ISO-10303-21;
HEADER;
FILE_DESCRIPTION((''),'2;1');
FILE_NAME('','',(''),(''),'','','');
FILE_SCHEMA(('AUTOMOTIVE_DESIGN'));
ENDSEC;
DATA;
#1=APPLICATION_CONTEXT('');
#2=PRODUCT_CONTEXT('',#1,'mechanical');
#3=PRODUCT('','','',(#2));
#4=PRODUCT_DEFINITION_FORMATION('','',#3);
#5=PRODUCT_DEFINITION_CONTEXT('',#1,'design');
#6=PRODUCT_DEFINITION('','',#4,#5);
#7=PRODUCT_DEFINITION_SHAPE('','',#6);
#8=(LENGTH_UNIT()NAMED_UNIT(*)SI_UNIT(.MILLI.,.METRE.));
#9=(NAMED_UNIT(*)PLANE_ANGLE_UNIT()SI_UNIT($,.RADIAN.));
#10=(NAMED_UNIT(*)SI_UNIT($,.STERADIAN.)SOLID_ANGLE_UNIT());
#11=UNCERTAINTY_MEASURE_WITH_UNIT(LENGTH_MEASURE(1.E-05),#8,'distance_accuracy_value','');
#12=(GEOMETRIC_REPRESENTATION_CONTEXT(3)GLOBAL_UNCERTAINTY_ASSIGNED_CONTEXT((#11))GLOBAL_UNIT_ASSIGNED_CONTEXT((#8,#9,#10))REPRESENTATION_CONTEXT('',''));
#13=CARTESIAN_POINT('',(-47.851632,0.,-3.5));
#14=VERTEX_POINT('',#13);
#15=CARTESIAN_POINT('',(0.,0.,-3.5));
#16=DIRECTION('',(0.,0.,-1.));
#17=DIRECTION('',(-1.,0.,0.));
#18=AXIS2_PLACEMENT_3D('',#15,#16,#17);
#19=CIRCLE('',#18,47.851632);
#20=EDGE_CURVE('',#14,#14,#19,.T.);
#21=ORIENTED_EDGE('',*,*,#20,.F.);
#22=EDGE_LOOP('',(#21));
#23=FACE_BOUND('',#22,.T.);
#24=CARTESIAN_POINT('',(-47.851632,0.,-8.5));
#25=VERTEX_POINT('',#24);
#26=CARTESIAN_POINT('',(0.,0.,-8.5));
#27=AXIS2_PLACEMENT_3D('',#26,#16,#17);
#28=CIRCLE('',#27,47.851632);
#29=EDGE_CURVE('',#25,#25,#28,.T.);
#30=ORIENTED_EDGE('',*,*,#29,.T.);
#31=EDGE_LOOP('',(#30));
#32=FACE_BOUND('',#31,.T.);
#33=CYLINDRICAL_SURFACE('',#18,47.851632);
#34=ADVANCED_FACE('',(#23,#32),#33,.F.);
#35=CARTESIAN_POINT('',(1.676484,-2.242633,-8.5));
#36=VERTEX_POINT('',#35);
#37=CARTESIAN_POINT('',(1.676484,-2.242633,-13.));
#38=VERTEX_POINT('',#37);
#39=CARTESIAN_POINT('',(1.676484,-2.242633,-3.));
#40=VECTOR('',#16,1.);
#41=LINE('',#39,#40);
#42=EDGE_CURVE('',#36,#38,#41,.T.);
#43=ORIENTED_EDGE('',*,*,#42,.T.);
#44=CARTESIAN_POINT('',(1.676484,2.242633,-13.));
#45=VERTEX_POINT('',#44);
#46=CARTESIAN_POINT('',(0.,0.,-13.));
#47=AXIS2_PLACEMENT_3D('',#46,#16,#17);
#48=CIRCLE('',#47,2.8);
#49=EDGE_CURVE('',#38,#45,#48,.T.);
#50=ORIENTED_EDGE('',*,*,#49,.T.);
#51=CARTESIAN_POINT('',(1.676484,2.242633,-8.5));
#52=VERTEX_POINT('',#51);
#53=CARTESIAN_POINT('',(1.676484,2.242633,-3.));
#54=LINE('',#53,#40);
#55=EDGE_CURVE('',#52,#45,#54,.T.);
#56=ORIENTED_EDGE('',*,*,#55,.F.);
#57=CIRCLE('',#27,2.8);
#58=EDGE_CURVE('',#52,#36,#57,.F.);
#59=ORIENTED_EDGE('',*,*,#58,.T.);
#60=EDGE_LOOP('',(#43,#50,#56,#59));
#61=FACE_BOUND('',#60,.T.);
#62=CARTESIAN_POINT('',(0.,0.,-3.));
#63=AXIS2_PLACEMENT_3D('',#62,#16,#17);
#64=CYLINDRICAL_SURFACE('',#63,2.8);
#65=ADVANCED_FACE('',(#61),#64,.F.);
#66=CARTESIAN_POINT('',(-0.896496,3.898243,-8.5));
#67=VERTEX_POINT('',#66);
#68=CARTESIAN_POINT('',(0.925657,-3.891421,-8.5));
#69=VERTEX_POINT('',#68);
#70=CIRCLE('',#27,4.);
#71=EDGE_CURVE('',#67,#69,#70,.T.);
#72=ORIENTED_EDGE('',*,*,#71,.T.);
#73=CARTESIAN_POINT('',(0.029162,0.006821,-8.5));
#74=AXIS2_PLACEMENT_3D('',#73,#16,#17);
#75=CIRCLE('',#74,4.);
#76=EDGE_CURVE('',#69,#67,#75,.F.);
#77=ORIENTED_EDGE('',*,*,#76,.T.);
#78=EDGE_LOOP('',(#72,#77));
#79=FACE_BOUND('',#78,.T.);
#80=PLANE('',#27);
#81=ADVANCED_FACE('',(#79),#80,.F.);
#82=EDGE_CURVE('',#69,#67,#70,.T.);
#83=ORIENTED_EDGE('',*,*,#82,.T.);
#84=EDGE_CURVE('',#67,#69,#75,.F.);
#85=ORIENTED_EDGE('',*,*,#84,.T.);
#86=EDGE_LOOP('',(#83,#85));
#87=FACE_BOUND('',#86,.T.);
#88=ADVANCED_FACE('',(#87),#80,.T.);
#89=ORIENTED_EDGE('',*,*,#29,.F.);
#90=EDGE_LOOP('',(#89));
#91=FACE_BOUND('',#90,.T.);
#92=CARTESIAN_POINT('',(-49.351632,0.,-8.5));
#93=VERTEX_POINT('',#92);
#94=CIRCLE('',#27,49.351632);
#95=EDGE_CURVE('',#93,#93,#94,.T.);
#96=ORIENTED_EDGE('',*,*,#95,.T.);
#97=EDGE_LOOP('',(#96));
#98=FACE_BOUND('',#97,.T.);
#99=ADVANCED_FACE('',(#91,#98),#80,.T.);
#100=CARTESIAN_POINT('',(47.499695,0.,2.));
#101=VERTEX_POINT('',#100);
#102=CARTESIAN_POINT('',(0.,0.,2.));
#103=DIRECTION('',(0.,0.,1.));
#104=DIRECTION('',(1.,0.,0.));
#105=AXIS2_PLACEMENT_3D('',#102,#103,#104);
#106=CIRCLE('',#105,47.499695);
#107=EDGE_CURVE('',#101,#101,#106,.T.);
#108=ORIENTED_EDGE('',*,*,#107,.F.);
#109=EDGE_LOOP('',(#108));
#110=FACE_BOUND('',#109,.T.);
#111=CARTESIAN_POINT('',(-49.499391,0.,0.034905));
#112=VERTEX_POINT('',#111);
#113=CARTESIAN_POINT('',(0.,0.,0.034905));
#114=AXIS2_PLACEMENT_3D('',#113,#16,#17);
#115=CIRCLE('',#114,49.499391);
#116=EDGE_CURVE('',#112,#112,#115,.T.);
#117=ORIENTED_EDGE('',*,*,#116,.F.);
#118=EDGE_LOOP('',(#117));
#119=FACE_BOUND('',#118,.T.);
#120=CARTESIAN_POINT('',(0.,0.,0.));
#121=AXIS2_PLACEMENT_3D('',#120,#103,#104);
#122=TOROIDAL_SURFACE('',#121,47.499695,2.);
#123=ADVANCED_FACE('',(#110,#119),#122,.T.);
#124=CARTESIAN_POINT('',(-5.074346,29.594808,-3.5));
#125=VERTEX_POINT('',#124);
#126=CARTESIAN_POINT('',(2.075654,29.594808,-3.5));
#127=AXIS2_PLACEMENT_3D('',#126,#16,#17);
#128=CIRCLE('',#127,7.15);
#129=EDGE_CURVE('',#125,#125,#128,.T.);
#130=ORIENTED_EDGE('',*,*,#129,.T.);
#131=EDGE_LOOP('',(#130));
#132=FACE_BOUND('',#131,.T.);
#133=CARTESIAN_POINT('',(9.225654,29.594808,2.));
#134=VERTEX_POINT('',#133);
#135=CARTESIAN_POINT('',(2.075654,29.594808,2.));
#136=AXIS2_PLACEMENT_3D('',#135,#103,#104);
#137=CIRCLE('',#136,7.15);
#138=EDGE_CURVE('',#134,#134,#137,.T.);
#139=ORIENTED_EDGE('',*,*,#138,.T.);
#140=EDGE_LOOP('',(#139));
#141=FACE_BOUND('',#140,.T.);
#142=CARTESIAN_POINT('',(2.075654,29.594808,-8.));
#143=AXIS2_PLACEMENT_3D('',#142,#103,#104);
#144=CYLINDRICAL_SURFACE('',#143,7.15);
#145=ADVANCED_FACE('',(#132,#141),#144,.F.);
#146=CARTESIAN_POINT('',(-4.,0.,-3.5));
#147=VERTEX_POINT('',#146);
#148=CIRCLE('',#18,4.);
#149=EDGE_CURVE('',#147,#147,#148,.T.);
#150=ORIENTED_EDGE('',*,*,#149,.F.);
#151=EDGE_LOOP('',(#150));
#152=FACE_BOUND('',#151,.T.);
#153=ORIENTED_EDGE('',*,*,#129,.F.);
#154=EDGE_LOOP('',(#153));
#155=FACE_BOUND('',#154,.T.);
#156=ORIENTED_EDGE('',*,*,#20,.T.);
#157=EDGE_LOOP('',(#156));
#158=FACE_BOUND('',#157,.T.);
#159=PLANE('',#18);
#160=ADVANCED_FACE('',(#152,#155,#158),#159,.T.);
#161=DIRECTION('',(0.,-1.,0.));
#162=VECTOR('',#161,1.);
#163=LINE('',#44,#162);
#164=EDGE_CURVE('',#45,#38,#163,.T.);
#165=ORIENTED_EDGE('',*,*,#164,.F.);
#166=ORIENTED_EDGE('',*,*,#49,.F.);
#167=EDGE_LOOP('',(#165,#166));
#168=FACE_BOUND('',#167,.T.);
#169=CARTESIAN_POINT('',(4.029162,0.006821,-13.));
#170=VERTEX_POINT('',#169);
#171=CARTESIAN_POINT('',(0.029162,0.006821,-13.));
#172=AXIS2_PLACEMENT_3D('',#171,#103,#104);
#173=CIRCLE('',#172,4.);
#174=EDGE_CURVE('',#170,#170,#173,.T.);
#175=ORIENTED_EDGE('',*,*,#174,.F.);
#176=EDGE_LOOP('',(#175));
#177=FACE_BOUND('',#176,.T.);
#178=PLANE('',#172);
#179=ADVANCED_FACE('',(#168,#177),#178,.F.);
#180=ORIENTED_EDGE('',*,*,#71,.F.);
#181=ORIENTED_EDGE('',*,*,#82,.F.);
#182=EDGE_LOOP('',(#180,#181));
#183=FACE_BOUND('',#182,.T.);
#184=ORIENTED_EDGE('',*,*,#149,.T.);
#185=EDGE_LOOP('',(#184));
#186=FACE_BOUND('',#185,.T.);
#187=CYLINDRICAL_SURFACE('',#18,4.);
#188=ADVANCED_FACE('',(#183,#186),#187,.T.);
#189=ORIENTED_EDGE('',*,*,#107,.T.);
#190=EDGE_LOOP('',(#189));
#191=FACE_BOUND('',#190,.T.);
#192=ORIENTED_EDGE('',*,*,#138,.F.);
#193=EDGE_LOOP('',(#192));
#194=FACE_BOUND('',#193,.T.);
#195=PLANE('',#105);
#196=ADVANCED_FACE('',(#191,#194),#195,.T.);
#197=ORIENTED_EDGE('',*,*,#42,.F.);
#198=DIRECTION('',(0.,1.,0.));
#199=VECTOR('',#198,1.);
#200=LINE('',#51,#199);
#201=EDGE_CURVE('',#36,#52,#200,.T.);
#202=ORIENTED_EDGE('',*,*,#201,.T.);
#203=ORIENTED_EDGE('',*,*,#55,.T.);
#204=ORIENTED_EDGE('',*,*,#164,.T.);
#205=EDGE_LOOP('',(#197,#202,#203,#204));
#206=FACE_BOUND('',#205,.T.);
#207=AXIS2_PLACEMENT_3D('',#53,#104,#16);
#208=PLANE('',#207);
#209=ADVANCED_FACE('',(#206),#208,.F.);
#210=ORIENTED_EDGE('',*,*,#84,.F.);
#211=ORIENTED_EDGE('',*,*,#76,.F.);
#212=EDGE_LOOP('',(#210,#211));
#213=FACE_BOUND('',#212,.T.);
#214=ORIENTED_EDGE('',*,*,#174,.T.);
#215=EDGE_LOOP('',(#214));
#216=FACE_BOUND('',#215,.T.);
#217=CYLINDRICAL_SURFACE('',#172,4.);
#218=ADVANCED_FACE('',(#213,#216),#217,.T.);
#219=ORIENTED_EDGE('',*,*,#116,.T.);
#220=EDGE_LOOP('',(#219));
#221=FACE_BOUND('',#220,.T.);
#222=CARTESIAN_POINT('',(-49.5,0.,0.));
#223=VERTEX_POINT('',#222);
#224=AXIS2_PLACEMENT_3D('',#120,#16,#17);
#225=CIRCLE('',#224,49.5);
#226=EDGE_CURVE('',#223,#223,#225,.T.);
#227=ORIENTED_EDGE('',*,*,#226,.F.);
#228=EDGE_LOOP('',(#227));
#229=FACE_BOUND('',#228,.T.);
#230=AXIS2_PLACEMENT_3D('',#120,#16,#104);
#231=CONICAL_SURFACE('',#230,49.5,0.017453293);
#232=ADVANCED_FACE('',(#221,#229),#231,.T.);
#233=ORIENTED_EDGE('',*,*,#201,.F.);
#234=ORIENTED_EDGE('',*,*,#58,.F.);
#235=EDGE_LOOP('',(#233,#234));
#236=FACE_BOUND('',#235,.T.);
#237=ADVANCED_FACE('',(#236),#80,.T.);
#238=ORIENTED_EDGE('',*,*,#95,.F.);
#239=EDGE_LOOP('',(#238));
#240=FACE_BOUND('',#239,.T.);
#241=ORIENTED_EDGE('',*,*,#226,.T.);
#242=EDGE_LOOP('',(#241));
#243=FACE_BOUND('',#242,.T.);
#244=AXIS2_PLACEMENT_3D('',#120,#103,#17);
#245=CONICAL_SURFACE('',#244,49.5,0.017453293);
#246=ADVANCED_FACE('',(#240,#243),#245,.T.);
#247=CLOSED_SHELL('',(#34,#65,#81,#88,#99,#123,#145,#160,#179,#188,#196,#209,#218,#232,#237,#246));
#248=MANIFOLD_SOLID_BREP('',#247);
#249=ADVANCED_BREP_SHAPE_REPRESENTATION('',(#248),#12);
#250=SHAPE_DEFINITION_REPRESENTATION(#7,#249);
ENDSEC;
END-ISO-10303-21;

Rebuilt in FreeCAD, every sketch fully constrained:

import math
import FreeCAD as App
import Part
import Sketcher
from FreeCAD import Vector
Q = App.Units.Quantity


def edges_at(feature, points):
    """Names of the edges that pass closest to the given points."""
    edges = feature.Shape.Edges
    near = lambda p: min(range(len(edges)), key=lambda i: edges[i].distToShape(Part.Vertex(*p))[0])
    return sorted({f"Edge{near(p) + 1}" for p in points})


def faces_at(feature, points):
    """Names of the faces that lie closest to the given points."""
    faces = feature.Shape.Faces
    near = lambda p: min(range(len(faces)), key=lambda i: faces[i].distToShape(Part.Vertex(*p))[0])
    return sorted({f"Face{near(p) + 1}" for p in points})

doc = App.newDocument("Part")
body = doc.addObject("PartDesign::Body", "Body")

# Sketch on XY plane
sketch1 = body.newObject("Sketcher::SketchObject", "Sketch")
sketch1.AttachmentSupport = (doc.getObject("XY_Plane"), [""])
sketch1.MapMode = "FlatFace"
sketch1.addGeometry(Part.Circle(Vector(0, 0, 0), Vector(0, 0, 1), 49.5), False)
sketch1.addConstraint([
    Sketcher.Constraint("Coincident", 0, 3, -1, 1),
    Sketcher.Constraint("Diameter", 0, Q("99 mm")),
])
pad1 = body.newObject("PartDesign::Pad", "Pad")
pad1.Profile = sketch1
pad1.Length = 2
pad1.TaperAngle = -1

# Sketch on XY plane
sketch2 = body.newObject("Sketcher::SketchObject", "Sketch001")
sketch2.AttachmentSupport = (doc.getObject("XY_Plane"), [""])
sketch2.MapMode = "FlatFace"
sketch2.AttachmentOffset = App.Placement(Vector(0, 0, 2), App.Rotation())
sketch2.addGeometry(Part.Circle(Vector(0.029162, 0.006821, 0), Vector(0, 0, 1), 4), False)
sketch2.addConstraint([
    Sketcher.Constraint("Diameter", 0, Q("8 mm")),
    Sketcher.Constraint("DistanceX", -1, 1, 0, 3, Q("0.029162 mm")),
    Sketcher.Constraint("DistanceY", -1, 1, 0, 3, Q("0.006821 mm")),
])
pad2 = body.newObject("PartDesign::Pad", "Pad001")
pad2.Profile = sketch2
pad2.Length = 15
pad2.Reversed = True

# Sketch on XY plane
sketch3 = body.newObject("Sketcher::SketchObject", "Sketch002")
sketch3.AttachmentSupport = (doc.getObject("XY_Plane"), [""])
sketch3.MapMode = "FlatFace"
sketch3.AttachmentOffset = App.Placement(Vector(0, 0, -13), App.Rotation())
sketch3.addGeometry([
    Part.LineSegment(Vector(1.576484, 2.191962, 0), Vector(1.576484, -2.191962, 0)),
    Part.ArcOfCircle(Part.Circle(Vector(0, 0, 0), Vector(0, 0, 1), 2.7), math.radians(54.275889), math.radians(305.724111)),
], False)
sketch3.addConstraint([
    Sketcher.Constraint("Coincident", 0, 1, 1, 1),
    Sketcher.Constraint("Coincident", 1, 2, 0, 2),
    Sketcher.Constraint("Vertical", 0),
    Sketcher.Constraint("Coincident", 1, 3, -1, 1),
    Sketcher.Constraint("Radius", 1, Q("2.7 mm")),
    Sketcher.Constraint("DistanceY", 0, 2, 0, 1, Q("4.383925 mm")),
])
pocket1 = body.newObject("PartDesign::Pocket", "Pocket")
pocket1.Profile = sketch3
pocket1.Length = 5
pocket1.Reversed = True
doc.recompute()

fillet = body.newObject("PartDesign::Fillet", "Fillet")
fillet.Base = (pocket1, edges_at(pocket1, [(-49.465, 0, 2)]))
fillet.Radius = 2
body2 = doc.addObject("PartDesign::Body", "Body001")

# Sketch on XY plane
sketch4 = body2.newObject("Sketcher::SketchObject", "Sketch003")
sketch4.AttachmentSupport = (doc.getObject("XY_Plane001"), [""])
sketch4.MapMode = "FlatFace"
sketch4.AttachmentOffset = App.Placement(Vector(0, 0, 2), App.Rotation())
sketch4.addGeometry(Part.Circle(Vector(2.075654, 29.594808, 0), Vector(0, 0, 1), 7.15), False)
sketch4.addConstraint([
    Sketcher.Constraint("Diameter", 0, Q("14.3 mm")),
    Sketcher.Constraint("DistanceY", -1, 1, 0, 3, Q("29.594808 mm")),
    Sketcher.Constraint("DistanceX", -1, 1, 0, 3, Q("2.075654 mm")),
])
pad3 = body2.newObject("PartDesign::Pad", "Pad002")
pad3.Profile = sketch4
pad3.Length = 11
pad3.Reversed = True
doc.recompute()

datumplane = body2.newObject("PartDesign::Plane", "DatumPlane")
datumplane.AttachmentSupport = (doc.getObject("XY_Plane001"), [""])
datumplane.MapMode = "FlatFace"
datumplane.AttachmentOffset = App.Placement(Vector(0, 0, 2), App.Rotation())
draft = body2.newObject("PartDesign::Draft", "Draft")
draft.Base = (pad3, faces_at(pad3, [(-5.074, 29.595, -3.5)]))
draft.NeutralPlane = (datumplane, [""])
draft.Angle = 1
draft.Reversed = True
doc.recompute()

boolean = body.newObject("PartDesign::Boolean", "Boolean")
boolean.Type = "Cut"
boolean.addObjects([body2])

# Sketch on XY plane
sketch5 = body.newObject("Sketcher::SketchObject", "Sketch004")
sketch5.AttachmentSupport = (doc.getObject("XY_Plane"), [""])
sketch5.MapMode = "FlatFace"
sketch5.AttachmentOffset = App.Placement(Vector(0, 0, -13), App.Rotation())
sketch5.addGeometry([
    Part.LineSegment(Vector(1.676484, 2.242633, 0), Vector(1.676484, -2.242633, 0)),
    Part.ArcOfCircle(Part.Circle(Vector(0, 0, 0), Vector(0, 0, 1), 2.8), math.radians(53.219988), math.radians(306.780012)),
], False)
sketch5.addConstraint([
    Sketcher.Constraint("Coincident", 0, 1, 1, 1),
    Sketcher.Constraint("Coincident", 1, 2, 0, 2),
    Sketcher.Constraint("Vertical", 0),
    Sketcher.Constraint("Coincident", 1, 3, -1, 1),
    Sketcher.Constraint("Radius", 1, Q("2.8 mm")),
    Sketcher.Constraint("DistanceY", 0, 2, 0, 1, Q("4.485266 mm")),
])
pocket2 = body.newObject("PartDesign::Pocket", "Pocket001")
pocket2.Profile = sketch5
pocket2.Length = 10
pocket2.Reversed = True

# Sketch on XY plane
sketch6 = body.newObject("Sketcher::SketchObject", "Sketch005")
sketch6.AttachmentSupport = (doc.getObject("XY_Plane"), [""])
sketch6.MapMode = "FlatFace"
sketch6.addGeometry(Part.Circle(Vector(0, 0, 0), Vector(0, 0, 1), 49.5), False)
sketch6.addConstraint([
    Sketcher.Constraint("Coincident", 0, 3, -1, 1),
    Sketcher.Constraint("Diameter", 0, Q("99 mm")),
])
pad4 = body.newObject("PartDesign::Pad", "Pad003")
pad4.Profile = sketch6
pad4.Length = 8.5
pad4.Reversed = True
pad4.TaperAngle = -1

# Sketch on XY plane
sketch7 = body.newObject("Sketcher::SketchObject", "Sketch006")
sketch7.AttachmentSupport = (doc.getObject("XY_Plane"), [""])
sketch7.MapMode = "FlatFace"
sketch7.AttachmentOffset = App.Placement(Vector(0, 0, -8.5), App.Rotation())
sketch7.addGeometry([
    Part.Circle(Vector(0, 0, 0), Vector(0, 0, 1), 47.851632),
    Part.Circle(Vector(0, 0, 0), Vector(0, 0, 1), 4),
], False)
sketch7.addConstraint([
    Sketcher.Constraint("Coincident", 0, 3, -1, 1),
    Sketcher.Constraint("Coincident", 1, 3, -1, 1),
    Sketcher.Constraint("Diameter", 1, Q("8 mm")),
    Sketcher.Constraint("Diameter", 0, Q("95.703264 mm")),
])
pocket3 = body.newObject("PartDesign::Pocket", "Pocket002")
pocket3.Profile = sketch7
pocket3.Length = 5
pocket3.Reversed = True

# Sketch on XY plane
sketch8 = body.newObject("Sketcher::SketchObject", "Sketch007")
sketch8.AttachmentSupport = (doc.getObject("XY_Plane"), [""])
sketch8.MapMode = "FlatFace"
sketch8.AttachmentOffset = App.Placement(Vector(0, 0, 2), App.Rotation())
sketch8.addGeometry(Part.Circle(Vector(2.075654, 29.594808, 0), Vector(0, 0, 1), 7.15), False)
sketch8.addConstraint([
    Sketcher.Constraint("Diameter", 0, Q("14.3 mm")),
    Sketcher.Constraint("DistanceY", -1, 1, 0, 3, Q("29.594808 mm")),
    Sketcher.Constraint("DistanceX", -1, 1, 0, 3, Q("2.075654 mm")),
])
pocket4 = body.newObject("PartDesign::Pocket", "Pocket003")
pocket4.Profile = sketch8
pocket4.Length = 10

doc.recompute()
